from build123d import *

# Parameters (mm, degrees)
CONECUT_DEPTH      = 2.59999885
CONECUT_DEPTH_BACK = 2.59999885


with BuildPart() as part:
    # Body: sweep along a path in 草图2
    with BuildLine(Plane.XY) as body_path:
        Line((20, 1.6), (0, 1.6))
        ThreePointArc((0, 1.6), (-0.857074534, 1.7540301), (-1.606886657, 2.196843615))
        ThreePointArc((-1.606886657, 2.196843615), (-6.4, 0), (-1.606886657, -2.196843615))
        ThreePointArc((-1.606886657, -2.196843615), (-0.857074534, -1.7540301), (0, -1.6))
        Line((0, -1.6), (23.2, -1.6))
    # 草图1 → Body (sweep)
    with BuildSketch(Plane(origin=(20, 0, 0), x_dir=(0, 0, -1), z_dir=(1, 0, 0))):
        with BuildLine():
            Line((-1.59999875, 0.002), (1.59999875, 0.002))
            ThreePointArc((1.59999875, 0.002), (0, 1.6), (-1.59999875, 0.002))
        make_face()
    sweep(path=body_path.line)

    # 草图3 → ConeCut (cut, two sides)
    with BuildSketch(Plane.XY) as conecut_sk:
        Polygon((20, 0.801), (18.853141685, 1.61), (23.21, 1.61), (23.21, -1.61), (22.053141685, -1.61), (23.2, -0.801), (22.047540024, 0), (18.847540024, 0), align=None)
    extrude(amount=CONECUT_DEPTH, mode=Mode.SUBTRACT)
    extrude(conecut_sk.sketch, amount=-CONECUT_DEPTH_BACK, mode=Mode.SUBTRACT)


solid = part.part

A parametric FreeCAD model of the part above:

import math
import FreeCAD as App
import Part
import Sketcher
Q = App.Units.Quantity


def add_polygon(sketch, points):
    """Adds a closed chain of lines whose ends are joined by coincident constraints."""
    first, n = sketch.GeometryCount, len(points)
    for a, b in zip(points, points[1:] + points[:1]):
        sketch.addGeometry(Part.LineSegment(App.Vector(*a, 0), App.Vector(*b, 0)), False)
    for i in range(n):
        sketch.addConstraint(Sketcher.Constraint("Coincident", first + i, 2, first + (i + 1) % n, 1))

doc = App.newDocument("Part")
body = doc.addObject("PartDesign::Body", "Body")

# Sketch on YZ plane
sketch1 = doc.addObject("Sketcher::SketchObject", "Sketch")
body.addObject(sketch1)
sketch1.AttachmentSupport = (doc.YZ_Plane, [""])
sketch1.MapMode = "FlatFace"
sketch1.AttachmentOffset = App.Placement(App.Vector(0, 0, 20), App.Rotation())
sketch1.addGeometry([
    Part.LineSegment(App.Vector(0.002, 1.599999, 0), App.Vector(0.002, -1.599999, 0)),
    Part.ArcOfCircle(Part.Circle(App.Vector(0, 0, 0), App.Vector(0, 0, 1), 1.6), math.radians(-89.92838), math.radians(89.92838)),
], False)
sketch1.addConstraint([
    Sketcher.Constraint("Coincident", 0, 1, 1, 2),
    Sketcher.Constraint("Coincident", 1, 1, 0, 2),
    Sketcher.Constraint("Vertical", 0),
    Sketcher.Constraint("Coincident", 1, 3, -1, 1),
    Sketcher.Constraint("Radius", 1, Q("1.6 mm")),
    Sketcher.Constraint("DistanceX", -1, 1, 0, 1, Q("0.002 mm")),
])

# Sketch on XY plane
sketch2 = doc.addObject("Sketcher::SketchObject", "Sketch001")
body.addObject(sketch2)
sketch2.AttachmentSupport = (doc.XY_Plane, [""])
sketch2.MapMode = "FlatFace"
sketch2.addGeometry([
    Part.LineSegment(App.Vector(20, 1.6, 0), App.Vector(0, 1.6, 0)),  # 0
    Part.ArcOfCircle(Part.Circle(App.Vector(0, 4.061538, 0), App.Vector(0, 0, 1), 2.461538), math.radians(-130.75287), math.radians(-90)),  # 1
    Part.ArcOfCircle(Part.Circle(App.Vector(-3.5, 0, 0), App.Vector(0, 0, 1), 2.9), math.radians(49.24713), math.radians(310.75287)),  # 2
    Part.ArcOfCircle(Part.Circle(App.Vector(0, -4.061538, 0), App.Vector(0, 0, 1), 2.461538), math.radians(90), math.radians(130.75287)),  # 3
    Part.LineSegment(App.Vector(0, -1.6, 0), App.Vector(23.2, -1.6, 0)),  # 4
], False)
sketch2.addConstraint([
    Sketcher.Constraint("Tangent", 0, 2, 1, 2),
    Sketcher.Constraint("Tangent", 1, 1, 2, 1),
    Sketcher.Constraint("Tangent", 2, 2, 3, 2),
    Sketcher.Constraint("Tangent", 3, 1, 4, 1),
    Sketcher.Constraint("Horizontal", 0),
    Sketcher.Constraint("Horizontal", 4),
    Sketcher.Constraint("Equal", 1, 3),
    Sketcher.Constraint("Symmetric", 1, 3, 3, 3, -1, 1),
    Sketcher.Constraint("PointOnObject", 1, 3, -2),
    Sketcher.Constraint("Radius", 2, Q("2.9 mm")),
    Sketcher.Constraint("DistanceX", 0, 2, 0, 1, Q("20 mm")),
    Sketcher.Constraint("DistanceX", 4, 1, 4, 2, Q("23.2 mm")),
    Sketcher.Constraint("DistanceX", 2, 3, -1, 1, Q("3.5 mm")),
    Sketcher.Constraint("DistanceY", -1, 1, 0, 1, Q("1.6 mm")),
])
doc.recompute()

additivepipe = doc.addObject("PartDesign::AdditivePipe", "AdditivePipe")
body.addObject(additivepipe)
additivepipe.Profile = sketch1
additivepipe.Spine = (sketch2, ["Edge1", "Edge2", "Edge3", "Edge4", "Edge5"])

# Sketch on XY plane
sketch3 = doc.addObject("Sketcher::SketchObject", "Sketch002")
body.addObject(sketch3)
sketch3.AttachmentSupport = (doc.XY_Plane, [""])
sketch3.MapMode = "FlatFace"
add_polygon(sketch3, [(18.853142, 1.61), (20, 0.801), (18.84754, 0), (22.04754, 0), (23.2, -0.801), (22.053142, -1.61), (23.21, -1.61), (23.21, 1.61)])  # lines 0-7
sketch3.addConstraint([
    Sketcher.Constraint("Horizontal", 2),
    Sketcher.Constraint("Horizontal", 5),
    Sketcher.Constraint("Vertical", 6),
    Sketcher.Constraint("Horizontal", 7),
    Sketcher.Constraint("PointOnObject", 1, 2, -1),
    Sketcher.Constraint("Equal", 0, 1),
    Sketcher.Constraint("Equal", 1, 3),
    Sketcher.Constraint("Equal", 3, 4),
    Sketcher.Constraint("DistanceX", 2, 1, 2, 2, Q("3.2 mm")),
    Sketcher.Constraint("DistanceX", -1, 1, 0, 2, Q("20 mm")),
    Sketcher.Constraint("DistanceY", 6, 1, 6, 2, Q("3.22 mm")),
    Sketcher.Constraint("DistanceX", -1, 1, 3, 2, Q("23.2 mm")),
    Sketcher.Constraint("DistanceX", 7, 2, 4, 2, Q("3.2 mm")),
    Sketcher.Constraint("DistanceX", -1, 1, 5, 2, Q("23.21 mm")),
    Sketcher.Constraint("DistanceY", -1, 1, 0, 2, Q("0.801 mm")),
    Sketcher.Constraint("DistanceX", 5, 1, 5, 2, Q("1.156858 mm")),
])
pocket1 = doc.addObject("PartDesign::Pocket", "Pocket")
body.addObject(pocket1)
pocket1.Profile = sketch3
pocket1.Type = "ThroughAll"
pocket1.Midplane = True

doc.recompute()
